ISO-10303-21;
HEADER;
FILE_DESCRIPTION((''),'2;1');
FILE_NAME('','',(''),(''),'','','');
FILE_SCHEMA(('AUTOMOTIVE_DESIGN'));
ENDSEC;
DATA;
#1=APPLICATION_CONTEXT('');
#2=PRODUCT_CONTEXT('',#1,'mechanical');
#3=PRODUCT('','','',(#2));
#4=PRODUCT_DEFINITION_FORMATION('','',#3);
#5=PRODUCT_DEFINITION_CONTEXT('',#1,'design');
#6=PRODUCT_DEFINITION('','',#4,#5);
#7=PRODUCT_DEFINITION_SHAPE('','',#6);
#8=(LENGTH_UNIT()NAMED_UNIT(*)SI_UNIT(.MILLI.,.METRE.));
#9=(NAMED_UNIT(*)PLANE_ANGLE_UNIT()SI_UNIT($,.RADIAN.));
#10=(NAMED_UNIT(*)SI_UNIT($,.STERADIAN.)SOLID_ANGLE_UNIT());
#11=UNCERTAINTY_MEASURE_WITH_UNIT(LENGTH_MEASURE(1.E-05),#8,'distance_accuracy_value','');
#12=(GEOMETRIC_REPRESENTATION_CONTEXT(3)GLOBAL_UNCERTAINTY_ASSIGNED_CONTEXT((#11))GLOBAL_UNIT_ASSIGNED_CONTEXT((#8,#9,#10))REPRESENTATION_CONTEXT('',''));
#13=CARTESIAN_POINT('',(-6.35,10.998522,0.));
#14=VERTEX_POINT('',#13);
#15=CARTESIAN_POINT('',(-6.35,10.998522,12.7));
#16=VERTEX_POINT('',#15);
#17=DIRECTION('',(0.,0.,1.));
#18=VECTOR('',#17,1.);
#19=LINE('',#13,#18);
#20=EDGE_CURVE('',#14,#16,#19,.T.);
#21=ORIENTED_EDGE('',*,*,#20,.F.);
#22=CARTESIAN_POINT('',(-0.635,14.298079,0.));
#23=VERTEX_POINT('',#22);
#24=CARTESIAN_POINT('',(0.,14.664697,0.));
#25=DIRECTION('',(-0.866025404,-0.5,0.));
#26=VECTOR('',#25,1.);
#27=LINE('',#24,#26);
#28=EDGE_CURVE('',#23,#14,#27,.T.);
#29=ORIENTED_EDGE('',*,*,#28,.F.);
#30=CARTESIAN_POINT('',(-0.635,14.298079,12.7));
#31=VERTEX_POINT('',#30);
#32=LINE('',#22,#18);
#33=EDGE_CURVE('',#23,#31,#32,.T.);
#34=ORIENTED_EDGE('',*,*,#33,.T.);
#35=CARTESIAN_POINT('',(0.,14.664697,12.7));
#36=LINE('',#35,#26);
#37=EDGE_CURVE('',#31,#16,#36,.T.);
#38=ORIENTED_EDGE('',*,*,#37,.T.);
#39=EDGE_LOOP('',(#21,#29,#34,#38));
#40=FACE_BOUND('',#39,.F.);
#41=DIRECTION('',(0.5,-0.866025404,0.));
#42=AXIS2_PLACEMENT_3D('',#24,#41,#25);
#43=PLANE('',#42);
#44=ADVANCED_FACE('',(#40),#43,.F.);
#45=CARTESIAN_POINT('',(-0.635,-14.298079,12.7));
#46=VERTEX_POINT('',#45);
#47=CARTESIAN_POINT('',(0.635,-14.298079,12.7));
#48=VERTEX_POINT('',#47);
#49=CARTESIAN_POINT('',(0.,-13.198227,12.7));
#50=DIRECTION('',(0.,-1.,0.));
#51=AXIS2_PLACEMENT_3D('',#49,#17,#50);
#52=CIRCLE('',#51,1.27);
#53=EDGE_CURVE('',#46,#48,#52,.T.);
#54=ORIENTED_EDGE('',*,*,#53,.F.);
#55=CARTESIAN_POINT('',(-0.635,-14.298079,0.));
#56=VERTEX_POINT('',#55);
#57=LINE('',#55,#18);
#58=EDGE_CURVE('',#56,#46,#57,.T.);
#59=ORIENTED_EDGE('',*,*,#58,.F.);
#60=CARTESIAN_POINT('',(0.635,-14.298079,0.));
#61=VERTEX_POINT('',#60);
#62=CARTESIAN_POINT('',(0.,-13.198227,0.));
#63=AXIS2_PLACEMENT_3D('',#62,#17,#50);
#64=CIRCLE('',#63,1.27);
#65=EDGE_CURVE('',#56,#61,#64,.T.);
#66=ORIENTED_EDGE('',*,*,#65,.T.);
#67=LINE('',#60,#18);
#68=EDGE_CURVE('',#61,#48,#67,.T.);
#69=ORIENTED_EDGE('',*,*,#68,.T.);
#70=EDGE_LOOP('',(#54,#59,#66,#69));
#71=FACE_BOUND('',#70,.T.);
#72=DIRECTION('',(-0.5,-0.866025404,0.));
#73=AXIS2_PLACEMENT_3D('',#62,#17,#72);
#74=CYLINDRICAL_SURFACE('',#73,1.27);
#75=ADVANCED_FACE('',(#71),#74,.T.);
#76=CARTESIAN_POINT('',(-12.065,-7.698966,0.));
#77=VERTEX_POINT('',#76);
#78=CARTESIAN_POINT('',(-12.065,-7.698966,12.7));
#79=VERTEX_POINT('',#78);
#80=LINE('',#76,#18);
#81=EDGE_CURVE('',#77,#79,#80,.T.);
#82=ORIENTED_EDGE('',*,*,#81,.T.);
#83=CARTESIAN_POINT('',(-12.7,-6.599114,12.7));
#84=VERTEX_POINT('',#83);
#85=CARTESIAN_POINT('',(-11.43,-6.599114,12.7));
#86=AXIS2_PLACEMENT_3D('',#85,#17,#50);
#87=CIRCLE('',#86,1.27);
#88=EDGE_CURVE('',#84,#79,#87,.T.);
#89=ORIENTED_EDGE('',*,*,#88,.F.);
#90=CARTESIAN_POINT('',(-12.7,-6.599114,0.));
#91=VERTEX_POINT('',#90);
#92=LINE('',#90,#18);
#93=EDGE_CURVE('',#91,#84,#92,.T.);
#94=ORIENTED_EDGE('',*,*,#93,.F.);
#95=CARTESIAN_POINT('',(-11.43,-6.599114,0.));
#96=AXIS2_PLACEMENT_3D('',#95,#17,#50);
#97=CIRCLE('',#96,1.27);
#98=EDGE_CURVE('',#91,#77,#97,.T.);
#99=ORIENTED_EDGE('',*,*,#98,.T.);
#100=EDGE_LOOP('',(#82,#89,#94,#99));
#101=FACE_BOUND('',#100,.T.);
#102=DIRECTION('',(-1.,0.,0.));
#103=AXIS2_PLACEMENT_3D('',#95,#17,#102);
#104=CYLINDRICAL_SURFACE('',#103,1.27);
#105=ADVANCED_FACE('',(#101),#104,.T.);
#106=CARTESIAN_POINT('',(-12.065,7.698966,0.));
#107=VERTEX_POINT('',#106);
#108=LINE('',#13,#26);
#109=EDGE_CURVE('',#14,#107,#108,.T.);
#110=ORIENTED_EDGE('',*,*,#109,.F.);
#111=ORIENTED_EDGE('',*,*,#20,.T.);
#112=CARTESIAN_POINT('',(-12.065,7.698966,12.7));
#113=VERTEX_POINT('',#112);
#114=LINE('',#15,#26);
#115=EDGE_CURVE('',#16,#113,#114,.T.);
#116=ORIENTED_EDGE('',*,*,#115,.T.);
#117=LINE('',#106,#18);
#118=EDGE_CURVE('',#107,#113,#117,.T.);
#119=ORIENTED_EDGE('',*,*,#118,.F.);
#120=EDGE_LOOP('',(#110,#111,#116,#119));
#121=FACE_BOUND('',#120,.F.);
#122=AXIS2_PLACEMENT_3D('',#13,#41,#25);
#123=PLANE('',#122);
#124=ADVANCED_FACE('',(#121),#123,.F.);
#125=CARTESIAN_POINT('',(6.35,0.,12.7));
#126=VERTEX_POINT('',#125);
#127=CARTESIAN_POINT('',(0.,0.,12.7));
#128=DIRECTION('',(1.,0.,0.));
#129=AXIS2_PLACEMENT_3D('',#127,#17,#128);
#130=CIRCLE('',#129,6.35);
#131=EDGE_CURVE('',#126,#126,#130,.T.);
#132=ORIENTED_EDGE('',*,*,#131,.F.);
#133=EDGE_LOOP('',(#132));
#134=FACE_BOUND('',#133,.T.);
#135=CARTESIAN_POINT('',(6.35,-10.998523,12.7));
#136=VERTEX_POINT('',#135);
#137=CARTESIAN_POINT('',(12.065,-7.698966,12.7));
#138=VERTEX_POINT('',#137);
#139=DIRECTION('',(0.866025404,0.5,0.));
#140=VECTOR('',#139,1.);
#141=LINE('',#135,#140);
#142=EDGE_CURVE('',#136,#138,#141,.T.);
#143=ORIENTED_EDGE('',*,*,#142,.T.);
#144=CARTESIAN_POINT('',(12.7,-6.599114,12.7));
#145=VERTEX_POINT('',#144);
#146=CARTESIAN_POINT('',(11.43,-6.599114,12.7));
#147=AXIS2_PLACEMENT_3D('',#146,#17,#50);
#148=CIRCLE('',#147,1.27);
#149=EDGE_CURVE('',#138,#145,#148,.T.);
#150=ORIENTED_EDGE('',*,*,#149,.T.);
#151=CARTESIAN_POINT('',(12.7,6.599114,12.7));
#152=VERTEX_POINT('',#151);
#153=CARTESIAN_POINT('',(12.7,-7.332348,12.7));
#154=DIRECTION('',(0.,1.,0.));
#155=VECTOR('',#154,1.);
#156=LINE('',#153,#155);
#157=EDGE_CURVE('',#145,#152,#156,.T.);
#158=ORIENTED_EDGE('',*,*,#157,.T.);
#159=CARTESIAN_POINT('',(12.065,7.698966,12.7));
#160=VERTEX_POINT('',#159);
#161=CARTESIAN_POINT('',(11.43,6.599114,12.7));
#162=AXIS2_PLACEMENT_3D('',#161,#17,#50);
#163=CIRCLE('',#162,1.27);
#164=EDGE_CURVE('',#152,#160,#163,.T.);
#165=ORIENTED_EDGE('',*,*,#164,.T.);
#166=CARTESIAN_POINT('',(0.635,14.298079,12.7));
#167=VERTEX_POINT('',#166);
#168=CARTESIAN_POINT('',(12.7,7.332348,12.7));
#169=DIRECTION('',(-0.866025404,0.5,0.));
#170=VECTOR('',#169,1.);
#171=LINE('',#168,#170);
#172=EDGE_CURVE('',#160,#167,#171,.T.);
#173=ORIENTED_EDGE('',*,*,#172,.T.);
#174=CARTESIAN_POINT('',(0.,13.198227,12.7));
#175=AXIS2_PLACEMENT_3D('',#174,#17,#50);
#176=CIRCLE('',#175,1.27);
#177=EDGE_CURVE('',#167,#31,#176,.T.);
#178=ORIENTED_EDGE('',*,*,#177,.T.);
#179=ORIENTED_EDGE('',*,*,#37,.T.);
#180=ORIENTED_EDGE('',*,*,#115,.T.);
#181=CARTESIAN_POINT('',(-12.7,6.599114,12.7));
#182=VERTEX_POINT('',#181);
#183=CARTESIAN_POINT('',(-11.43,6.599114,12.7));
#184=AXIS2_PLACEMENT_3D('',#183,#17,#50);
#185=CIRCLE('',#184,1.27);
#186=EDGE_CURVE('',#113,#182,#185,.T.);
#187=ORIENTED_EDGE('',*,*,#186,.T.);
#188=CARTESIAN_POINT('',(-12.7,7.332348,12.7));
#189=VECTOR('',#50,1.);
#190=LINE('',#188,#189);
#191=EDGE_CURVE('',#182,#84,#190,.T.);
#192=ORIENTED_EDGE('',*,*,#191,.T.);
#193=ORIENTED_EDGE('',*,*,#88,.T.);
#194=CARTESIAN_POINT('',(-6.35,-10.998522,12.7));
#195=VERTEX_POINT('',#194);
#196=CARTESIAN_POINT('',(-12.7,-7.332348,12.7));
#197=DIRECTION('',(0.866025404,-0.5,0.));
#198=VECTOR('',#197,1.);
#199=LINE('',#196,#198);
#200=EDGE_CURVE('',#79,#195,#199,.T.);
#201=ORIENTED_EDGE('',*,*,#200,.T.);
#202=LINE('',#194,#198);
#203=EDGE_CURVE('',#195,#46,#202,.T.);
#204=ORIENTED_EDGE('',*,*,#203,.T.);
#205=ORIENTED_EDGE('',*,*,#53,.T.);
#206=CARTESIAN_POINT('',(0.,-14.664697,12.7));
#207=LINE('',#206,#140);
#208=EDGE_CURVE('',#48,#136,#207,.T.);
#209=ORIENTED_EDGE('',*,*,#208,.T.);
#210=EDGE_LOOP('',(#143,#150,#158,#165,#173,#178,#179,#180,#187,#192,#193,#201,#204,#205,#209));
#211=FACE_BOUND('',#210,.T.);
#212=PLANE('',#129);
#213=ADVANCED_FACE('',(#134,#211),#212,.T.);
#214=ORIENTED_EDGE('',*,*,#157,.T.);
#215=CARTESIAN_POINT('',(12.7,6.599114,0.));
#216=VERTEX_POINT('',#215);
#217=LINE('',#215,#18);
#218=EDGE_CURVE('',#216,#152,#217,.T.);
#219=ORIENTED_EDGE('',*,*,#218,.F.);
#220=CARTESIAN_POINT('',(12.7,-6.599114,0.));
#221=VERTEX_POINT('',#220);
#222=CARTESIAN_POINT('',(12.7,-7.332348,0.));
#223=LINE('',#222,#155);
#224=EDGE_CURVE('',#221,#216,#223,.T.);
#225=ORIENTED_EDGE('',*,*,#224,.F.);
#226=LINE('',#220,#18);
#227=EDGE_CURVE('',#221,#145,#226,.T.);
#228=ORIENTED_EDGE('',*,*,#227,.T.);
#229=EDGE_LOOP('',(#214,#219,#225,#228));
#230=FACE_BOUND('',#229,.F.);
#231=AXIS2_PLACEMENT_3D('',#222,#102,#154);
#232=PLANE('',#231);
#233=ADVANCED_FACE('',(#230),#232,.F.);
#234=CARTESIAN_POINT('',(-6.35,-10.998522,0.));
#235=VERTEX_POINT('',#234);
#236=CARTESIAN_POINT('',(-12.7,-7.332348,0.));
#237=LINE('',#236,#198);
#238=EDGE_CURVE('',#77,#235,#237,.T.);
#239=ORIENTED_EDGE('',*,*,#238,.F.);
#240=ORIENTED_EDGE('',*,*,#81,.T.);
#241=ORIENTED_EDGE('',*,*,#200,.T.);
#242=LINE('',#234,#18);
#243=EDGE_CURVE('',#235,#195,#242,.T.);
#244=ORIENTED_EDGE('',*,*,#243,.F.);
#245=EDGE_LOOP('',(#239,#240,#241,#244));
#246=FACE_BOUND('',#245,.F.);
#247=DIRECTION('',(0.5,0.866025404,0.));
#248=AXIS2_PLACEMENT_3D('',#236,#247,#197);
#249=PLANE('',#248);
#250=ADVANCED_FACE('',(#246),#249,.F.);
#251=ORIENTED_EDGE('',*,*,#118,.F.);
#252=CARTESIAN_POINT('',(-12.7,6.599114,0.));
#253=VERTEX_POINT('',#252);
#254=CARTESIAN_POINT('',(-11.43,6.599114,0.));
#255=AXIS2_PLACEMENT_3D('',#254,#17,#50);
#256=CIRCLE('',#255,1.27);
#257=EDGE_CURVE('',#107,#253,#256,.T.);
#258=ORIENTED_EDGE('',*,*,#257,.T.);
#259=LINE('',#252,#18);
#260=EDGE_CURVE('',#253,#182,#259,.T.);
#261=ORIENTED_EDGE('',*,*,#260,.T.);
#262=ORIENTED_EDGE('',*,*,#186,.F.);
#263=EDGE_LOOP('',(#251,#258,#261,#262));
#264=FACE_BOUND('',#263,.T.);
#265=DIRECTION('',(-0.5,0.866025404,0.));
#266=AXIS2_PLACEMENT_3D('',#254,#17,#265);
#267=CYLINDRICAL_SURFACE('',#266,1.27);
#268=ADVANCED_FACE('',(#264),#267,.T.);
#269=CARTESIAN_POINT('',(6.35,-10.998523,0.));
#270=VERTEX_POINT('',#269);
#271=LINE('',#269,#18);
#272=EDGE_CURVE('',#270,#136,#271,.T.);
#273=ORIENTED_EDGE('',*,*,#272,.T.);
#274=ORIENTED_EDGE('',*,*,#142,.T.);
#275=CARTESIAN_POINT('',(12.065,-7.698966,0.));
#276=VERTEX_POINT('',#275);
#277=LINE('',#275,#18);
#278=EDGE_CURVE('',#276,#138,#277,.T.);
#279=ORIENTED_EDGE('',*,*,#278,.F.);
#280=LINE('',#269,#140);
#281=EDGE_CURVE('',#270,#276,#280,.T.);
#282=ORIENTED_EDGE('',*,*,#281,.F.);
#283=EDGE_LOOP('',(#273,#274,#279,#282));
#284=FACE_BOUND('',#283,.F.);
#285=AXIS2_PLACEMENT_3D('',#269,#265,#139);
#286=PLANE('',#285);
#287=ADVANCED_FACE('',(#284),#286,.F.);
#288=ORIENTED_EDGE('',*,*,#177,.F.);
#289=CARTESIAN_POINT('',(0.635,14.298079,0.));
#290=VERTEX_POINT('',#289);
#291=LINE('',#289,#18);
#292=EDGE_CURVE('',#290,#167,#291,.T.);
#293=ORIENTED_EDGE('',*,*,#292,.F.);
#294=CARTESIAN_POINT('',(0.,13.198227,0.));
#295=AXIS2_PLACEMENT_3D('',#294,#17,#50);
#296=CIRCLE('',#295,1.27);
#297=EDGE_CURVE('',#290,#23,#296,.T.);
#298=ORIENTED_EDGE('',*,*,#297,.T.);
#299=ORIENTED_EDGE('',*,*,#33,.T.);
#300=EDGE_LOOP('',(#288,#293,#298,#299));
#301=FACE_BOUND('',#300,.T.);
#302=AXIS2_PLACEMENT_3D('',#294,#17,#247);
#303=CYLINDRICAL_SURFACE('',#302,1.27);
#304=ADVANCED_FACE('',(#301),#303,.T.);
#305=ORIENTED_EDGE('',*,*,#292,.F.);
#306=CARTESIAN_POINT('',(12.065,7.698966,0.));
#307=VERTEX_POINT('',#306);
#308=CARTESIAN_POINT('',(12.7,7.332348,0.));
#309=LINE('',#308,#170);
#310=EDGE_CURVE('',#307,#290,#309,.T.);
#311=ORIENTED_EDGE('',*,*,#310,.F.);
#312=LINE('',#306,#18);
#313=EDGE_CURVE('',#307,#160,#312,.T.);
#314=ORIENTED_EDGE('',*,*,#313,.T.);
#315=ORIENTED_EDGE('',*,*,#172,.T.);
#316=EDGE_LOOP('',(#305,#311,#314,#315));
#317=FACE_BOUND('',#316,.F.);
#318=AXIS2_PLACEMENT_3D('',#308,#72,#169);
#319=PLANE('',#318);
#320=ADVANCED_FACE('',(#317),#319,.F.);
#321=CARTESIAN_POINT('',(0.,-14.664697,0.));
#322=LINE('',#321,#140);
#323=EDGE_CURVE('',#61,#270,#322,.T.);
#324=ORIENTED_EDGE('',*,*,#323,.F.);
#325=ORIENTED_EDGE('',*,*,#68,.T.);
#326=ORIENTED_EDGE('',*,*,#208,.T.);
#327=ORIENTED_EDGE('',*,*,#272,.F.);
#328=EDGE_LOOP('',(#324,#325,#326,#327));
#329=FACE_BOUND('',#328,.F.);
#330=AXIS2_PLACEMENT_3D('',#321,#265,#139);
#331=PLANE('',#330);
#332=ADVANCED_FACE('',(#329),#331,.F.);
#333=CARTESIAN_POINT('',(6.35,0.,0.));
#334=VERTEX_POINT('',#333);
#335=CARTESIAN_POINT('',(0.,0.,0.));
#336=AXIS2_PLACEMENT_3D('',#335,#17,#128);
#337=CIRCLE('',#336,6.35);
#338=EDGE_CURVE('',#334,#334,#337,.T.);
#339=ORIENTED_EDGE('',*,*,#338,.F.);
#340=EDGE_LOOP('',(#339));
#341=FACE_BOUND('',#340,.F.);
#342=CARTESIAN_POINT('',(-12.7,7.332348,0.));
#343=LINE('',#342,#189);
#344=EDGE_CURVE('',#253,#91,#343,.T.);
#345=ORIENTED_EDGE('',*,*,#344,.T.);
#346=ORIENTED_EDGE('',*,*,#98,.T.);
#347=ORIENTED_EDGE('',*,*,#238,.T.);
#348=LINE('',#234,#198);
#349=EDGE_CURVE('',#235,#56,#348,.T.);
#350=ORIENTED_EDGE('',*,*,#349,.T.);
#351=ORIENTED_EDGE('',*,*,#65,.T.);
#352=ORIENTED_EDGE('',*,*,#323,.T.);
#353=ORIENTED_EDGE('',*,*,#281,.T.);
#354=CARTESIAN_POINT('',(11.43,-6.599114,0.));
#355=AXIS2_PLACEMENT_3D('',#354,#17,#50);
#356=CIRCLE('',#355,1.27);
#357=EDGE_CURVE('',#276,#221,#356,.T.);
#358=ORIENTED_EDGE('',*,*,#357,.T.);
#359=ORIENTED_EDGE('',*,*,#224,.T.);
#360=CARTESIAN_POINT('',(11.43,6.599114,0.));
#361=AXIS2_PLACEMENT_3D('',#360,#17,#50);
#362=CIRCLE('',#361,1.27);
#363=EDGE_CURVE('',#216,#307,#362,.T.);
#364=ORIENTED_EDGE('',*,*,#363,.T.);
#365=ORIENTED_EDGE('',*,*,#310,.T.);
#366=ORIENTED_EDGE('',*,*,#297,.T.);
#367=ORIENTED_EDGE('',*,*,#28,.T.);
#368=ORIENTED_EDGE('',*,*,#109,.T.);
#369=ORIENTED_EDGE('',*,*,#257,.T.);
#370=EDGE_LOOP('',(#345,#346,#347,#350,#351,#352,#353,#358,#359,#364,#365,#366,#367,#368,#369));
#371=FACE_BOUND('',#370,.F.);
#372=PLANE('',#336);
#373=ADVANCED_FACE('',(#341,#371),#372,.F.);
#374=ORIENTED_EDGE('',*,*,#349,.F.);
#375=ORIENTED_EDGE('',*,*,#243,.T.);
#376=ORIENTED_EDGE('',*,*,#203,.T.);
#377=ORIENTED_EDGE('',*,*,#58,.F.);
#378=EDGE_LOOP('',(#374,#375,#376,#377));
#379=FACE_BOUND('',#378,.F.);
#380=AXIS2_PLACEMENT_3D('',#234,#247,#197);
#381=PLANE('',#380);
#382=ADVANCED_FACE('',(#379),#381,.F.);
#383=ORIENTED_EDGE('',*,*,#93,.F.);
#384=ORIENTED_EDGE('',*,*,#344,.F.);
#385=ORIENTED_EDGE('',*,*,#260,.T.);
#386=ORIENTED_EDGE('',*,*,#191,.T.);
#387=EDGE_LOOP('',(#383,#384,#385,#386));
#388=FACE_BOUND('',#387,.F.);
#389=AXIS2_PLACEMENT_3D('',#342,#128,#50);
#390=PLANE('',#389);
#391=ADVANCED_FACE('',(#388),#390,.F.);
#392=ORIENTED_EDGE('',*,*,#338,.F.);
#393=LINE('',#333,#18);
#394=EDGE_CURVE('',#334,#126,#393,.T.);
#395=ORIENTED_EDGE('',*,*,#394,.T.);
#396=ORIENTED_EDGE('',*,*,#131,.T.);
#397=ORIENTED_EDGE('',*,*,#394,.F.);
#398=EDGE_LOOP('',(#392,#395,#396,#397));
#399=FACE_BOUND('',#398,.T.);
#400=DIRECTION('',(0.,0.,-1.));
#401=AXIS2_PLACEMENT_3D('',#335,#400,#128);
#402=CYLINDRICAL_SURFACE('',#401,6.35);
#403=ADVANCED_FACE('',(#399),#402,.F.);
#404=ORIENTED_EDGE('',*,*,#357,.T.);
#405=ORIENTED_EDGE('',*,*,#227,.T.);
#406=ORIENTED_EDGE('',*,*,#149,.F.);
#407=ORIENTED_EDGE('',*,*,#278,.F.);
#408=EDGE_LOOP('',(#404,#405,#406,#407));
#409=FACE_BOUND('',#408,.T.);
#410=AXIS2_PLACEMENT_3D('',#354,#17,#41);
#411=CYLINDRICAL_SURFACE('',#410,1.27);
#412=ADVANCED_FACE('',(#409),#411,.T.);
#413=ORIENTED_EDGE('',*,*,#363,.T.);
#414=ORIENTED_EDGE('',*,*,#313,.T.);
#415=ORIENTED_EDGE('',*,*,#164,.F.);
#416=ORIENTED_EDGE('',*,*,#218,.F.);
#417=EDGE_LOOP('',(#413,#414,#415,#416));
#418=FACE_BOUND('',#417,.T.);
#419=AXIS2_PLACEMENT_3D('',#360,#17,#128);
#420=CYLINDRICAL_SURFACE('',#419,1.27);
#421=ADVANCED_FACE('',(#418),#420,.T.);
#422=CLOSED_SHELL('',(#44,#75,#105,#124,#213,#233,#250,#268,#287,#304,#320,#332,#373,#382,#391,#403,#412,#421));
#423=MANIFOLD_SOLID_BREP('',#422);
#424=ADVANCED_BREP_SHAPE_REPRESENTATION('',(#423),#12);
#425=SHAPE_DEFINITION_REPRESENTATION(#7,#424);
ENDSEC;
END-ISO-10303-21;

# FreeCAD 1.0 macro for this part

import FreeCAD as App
import Part
import Sketcher
Q = App.Units.Quantity


def edges_at(feature, points):
    """Names of the edges that pass closest to the given points."""
    edges = feature.Shape.Edges
    near = lambda p: min(range(len(edges)), key=lambda i: edges[i].distToShape(Part.Vertex(*p))[0])
    return sorted({f"Edge{near(p) + 1}" for p in points})


def add_polygon(sketch, points):
    """Adds a closed chain of lines whose ends are joined by coincident constraints."""
    first, n = sketch.GeometryCount, len(points)
    for a, b in zip(points, points[1:] + points[:1]):
        sketch.addGeometry(Part.LineSegment(App.Vector(*a, 0), App.Vector(*b, 0)), False)
    for i in range(n):
        sketch.addConstraint(Sketcher.Constraint("Coincident", first + i, 2, first + (i + 1) % n, 1))

doc = App.newDocument("Part")
body = doc.addObject("PartDesign::Body", "Body")

sketch1 = body.newObject("Sketcher::SketchObject", "Sketch")
sketch1.AttachmentSupport = (doc.getObject("XY_Plane"), [""])
sketch1.MapMode = "FlatFace"
add_polygon(sketch1, [(6, -11), (13, -7), (13, 7), (0, 15), (-6, 11), (-13, 7), (-13, -7), (-6, -11), (0, -15)])
sketch1.addGeometry(Part.Circle(App.Vector(0, 0, 0), App.Vector(0, 0, 1), 6), False)
sketch1.addConstraint([
    Sketcher.Constraint("Vertical", 1),
    Sketcher.Constraint("Vertical", 5),
    Sketcher.Constraint("Coincident", 9, 3, -1, 1),
    Sketcher.Constraint("Symmetric", 0, 2, 4, 2, -1, 1),
    Sketcher.Constraint("Symmetric", 2, 2, 7, 2, -1, 1),
    Sketcher.Constraint("Symmetric", 3, 2, 8, 2, -1, 1),
    Sketcher.Constraint("Symmetric", 6, 2, 8, 2, -2),
    Sketcher.Constraint("PointOnObject", 2, 2, -2),
    Sketcher.Constraint("Parallel", 0, 3),
    Sketcher.Constraint("Parallel", 2, 6),
    Sketcher.Constraint("Parallel", 6, 7),
    Sketcher.Constraint("Equal", 0, 3),
    Sketcher.Constraint("Diameter", 9, Q("0.5 in")),
    Sketcher.Constraint("Angle", 0, Q("30 deg")),
    Sketcher.Constraint("DistanceX", 4, 2, 1, 2, Q("1 in")),
    Sketcher.Constraint("DistanceY", 1, 1, 1, 2, Q("14.664697 mm")),
])
pad1 = body.newObject("PartDesign::Pad", "Pad")
pad1.Profile = sketch1
pad1.Length = Q("0.5 in")
doc.recompute()

fillet = body.newObject("PartDesign::Fillet", "Fillet")
fillet.Base = (pad1, edges_at(pad1, [
    (-12.7, -7.332, 6.35),
    (0, -14.665, 6.35),
    (12.7, -7.332, 6.35),
    (12.7, 7.332, 6.35),
    (0, 14.665, 6.35),
    (-12.7, 7.332, 6.35),
]))
fillet.Radius = Q("0.05 in")

doc.recompute()
